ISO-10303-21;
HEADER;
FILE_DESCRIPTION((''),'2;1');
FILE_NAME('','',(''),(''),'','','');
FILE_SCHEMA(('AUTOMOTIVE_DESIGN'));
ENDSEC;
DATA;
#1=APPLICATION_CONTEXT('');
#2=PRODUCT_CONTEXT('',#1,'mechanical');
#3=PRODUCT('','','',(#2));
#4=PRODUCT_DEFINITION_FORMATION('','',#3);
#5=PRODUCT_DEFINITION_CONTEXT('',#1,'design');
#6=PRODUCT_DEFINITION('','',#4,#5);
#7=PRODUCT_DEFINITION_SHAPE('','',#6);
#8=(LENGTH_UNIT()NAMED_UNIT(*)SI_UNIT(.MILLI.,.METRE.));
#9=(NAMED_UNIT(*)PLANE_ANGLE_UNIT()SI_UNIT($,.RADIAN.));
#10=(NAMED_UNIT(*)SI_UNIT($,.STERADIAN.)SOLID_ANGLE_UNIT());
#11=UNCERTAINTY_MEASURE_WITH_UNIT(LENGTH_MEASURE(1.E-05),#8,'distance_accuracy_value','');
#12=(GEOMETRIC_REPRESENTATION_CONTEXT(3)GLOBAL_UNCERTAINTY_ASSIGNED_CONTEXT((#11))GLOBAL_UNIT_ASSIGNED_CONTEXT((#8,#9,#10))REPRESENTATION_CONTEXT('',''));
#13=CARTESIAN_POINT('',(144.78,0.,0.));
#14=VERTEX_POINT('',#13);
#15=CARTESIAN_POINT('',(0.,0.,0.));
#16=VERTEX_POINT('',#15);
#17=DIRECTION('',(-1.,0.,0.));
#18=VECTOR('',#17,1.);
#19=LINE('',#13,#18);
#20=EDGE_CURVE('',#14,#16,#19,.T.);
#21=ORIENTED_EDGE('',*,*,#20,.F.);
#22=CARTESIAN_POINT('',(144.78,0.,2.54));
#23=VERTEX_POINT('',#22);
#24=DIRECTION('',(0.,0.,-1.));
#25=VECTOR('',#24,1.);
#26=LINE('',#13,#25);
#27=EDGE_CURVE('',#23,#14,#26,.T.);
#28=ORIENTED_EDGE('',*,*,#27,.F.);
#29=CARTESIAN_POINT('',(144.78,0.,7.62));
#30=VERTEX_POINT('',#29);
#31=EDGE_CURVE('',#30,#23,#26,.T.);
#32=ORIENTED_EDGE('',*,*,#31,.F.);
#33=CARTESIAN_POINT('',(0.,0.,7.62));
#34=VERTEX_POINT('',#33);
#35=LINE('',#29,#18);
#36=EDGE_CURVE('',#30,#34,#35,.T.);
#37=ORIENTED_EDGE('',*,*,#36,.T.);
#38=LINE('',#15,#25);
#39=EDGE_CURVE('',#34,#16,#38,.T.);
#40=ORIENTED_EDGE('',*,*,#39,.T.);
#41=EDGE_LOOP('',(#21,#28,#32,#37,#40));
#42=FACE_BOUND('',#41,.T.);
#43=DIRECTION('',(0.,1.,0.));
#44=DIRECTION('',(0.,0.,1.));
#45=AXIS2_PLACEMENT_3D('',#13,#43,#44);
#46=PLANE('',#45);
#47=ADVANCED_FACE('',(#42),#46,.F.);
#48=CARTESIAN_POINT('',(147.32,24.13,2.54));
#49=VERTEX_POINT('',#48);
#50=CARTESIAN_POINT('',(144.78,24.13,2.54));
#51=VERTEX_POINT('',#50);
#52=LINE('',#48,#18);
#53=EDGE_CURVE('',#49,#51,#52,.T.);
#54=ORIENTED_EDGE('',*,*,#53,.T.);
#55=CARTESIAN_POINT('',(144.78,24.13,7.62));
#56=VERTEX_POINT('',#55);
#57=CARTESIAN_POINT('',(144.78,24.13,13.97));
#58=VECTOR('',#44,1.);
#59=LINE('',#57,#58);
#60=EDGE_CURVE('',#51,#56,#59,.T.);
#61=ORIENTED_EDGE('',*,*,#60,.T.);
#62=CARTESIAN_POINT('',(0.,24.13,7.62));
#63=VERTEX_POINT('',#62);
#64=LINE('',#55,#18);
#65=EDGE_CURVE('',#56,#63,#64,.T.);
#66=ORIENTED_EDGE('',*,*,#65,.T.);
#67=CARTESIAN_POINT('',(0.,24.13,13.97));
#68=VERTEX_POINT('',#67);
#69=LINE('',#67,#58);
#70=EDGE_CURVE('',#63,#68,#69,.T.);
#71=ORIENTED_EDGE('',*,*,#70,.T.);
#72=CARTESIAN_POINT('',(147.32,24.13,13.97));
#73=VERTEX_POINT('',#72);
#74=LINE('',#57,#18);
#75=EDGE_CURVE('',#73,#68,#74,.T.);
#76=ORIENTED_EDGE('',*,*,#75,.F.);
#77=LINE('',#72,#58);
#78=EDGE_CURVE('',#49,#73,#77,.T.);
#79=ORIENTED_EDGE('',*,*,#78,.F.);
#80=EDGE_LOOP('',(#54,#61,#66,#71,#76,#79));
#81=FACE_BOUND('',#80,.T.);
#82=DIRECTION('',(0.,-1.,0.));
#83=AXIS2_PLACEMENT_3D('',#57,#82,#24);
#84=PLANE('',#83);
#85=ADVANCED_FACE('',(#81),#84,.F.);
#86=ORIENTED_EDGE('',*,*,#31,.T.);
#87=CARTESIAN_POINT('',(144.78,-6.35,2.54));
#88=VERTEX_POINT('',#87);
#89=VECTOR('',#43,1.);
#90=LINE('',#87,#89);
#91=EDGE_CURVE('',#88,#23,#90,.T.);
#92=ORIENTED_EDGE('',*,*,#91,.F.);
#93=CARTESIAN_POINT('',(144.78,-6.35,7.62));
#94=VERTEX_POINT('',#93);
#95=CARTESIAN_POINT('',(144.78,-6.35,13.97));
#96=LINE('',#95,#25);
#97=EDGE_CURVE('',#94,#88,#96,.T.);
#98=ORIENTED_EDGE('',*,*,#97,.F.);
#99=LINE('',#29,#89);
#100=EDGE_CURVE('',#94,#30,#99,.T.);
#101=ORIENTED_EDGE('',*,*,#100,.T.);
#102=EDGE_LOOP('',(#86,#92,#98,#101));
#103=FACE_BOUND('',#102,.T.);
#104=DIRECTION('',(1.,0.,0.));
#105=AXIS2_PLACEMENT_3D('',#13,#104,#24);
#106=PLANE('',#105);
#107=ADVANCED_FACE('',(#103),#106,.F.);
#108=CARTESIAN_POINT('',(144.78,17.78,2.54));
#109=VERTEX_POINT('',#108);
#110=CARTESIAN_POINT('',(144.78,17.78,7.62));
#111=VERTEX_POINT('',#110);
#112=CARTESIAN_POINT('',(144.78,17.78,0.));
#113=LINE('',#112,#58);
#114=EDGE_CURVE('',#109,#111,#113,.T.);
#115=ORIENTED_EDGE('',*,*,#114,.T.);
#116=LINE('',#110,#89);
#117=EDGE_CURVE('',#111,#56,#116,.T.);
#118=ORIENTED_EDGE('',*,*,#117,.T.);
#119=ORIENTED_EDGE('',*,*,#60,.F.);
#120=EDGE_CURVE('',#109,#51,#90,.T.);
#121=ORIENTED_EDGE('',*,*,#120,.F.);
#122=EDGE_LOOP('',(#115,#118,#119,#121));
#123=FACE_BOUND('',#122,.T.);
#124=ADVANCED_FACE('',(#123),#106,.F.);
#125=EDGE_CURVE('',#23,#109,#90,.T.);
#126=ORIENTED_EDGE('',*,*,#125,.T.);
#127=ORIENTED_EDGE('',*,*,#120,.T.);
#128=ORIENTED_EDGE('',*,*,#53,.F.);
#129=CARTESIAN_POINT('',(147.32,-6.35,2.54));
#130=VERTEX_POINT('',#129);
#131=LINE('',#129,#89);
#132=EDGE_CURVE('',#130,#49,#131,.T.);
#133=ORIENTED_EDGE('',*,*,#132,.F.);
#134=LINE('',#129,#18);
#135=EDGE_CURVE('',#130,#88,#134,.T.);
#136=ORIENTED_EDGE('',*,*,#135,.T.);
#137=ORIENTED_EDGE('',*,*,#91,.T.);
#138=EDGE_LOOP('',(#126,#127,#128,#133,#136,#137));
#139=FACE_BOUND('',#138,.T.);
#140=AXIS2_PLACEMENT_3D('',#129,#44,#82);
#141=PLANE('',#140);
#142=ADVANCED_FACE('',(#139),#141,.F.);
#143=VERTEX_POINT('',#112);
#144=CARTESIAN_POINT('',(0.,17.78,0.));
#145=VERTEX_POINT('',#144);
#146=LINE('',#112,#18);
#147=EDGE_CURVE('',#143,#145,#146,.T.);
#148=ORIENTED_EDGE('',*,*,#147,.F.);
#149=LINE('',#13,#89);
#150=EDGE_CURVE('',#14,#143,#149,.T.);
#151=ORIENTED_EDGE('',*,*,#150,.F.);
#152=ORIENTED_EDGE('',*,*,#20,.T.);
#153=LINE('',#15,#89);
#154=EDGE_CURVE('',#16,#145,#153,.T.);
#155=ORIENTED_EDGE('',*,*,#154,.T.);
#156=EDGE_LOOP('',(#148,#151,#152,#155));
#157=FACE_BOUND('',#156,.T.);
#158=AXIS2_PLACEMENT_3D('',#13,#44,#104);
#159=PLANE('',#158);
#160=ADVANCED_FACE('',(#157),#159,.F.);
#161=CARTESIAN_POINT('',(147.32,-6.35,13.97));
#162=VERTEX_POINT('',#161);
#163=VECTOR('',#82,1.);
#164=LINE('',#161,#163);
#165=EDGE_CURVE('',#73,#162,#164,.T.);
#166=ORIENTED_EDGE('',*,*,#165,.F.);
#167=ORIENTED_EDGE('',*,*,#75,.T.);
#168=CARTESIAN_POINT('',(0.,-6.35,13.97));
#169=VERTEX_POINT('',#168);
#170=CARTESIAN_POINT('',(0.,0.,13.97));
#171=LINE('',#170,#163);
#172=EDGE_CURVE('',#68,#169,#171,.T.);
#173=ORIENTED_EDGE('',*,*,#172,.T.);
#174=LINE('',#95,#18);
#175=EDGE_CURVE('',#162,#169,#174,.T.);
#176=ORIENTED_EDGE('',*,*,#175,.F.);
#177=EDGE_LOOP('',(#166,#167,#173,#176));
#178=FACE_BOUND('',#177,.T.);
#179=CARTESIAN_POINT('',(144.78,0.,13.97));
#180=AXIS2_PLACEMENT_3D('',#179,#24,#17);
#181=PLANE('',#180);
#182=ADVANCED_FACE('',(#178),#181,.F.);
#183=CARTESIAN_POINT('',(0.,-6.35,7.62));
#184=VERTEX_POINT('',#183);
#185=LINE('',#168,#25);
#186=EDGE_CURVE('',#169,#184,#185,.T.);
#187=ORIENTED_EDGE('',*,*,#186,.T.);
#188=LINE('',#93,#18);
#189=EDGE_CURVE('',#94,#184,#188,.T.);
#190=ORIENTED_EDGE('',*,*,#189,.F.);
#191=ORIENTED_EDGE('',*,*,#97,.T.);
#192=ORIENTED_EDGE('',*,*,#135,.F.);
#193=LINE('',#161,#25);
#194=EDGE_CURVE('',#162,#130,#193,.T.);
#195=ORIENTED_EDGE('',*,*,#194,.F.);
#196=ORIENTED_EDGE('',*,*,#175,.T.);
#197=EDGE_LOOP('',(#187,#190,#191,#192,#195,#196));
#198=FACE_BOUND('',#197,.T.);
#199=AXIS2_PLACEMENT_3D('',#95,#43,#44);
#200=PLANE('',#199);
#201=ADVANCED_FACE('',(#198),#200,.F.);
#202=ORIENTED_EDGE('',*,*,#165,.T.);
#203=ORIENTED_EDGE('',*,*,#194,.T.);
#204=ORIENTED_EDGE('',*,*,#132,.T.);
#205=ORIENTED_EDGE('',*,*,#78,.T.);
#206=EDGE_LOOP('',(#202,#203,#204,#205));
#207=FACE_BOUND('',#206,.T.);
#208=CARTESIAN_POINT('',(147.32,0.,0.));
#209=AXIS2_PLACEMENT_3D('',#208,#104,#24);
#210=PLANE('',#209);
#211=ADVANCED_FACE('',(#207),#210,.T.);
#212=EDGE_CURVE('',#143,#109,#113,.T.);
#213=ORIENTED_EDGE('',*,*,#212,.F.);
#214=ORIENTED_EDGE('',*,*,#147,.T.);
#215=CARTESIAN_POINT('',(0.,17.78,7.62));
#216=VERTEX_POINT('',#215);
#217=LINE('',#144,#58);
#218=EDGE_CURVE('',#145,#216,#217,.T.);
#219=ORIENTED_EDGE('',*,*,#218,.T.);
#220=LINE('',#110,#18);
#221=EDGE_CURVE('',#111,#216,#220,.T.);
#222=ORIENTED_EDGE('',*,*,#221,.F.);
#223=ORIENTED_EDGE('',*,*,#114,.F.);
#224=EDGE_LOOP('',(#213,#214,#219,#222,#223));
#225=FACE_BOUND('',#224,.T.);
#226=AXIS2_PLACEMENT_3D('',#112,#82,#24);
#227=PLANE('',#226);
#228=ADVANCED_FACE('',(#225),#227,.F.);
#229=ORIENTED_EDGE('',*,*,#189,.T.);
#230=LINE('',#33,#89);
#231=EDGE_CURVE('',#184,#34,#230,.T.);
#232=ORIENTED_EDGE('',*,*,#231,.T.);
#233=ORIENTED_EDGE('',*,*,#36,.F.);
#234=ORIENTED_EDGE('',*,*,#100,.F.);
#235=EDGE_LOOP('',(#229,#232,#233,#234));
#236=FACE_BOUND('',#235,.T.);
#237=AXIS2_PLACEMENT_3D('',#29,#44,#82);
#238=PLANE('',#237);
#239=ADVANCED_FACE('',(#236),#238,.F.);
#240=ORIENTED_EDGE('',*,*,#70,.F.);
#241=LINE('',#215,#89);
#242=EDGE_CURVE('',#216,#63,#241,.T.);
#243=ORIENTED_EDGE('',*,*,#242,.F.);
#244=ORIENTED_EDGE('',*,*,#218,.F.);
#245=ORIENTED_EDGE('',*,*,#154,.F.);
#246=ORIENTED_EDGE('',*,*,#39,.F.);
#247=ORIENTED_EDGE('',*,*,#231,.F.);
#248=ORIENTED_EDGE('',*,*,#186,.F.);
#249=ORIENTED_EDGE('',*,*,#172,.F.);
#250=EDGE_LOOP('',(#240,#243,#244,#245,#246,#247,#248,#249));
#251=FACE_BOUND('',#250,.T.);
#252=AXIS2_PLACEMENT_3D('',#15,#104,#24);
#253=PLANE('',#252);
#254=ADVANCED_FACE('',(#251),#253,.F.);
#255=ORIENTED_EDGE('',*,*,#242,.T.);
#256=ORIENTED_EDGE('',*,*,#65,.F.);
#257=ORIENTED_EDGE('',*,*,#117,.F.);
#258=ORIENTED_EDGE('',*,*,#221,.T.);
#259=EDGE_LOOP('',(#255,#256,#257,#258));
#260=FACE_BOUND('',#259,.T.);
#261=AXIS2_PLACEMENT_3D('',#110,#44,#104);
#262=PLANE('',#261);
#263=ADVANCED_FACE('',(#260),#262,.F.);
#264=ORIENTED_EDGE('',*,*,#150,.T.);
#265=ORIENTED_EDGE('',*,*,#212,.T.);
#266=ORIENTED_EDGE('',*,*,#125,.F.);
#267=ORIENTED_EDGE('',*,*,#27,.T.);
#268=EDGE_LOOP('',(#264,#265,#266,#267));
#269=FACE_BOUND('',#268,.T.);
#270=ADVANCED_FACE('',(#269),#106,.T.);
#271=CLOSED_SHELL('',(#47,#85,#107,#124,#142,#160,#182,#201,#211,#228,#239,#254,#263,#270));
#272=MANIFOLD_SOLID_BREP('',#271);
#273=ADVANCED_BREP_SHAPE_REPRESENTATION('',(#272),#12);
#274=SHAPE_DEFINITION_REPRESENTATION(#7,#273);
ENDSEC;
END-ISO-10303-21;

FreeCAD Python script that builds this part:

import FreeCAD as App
import Part
import Sketcher

V = App.Vector
Q = App.Units.Quantity


def add_polygon(sketch, points):
    """Adds a closed chain of lines whose ends are joined by coincident constraints."""
    first, n = sketch.GeometryCount, len(points)
    for a, b in zip(points, points[1:] + points[:1]):
        sketch.addGeometry(Part.LineSegment(App.Vector(*a, 0), App.Vector(*b, 0)), False)
    for i in range(n):
        sketch.addConstraint(Sketcher.Constraint("Coincident", first + i, 2, first + (i + 1) % n, 1))

doc = App.newDocument("Part")
params = doc.addObject("Spreadsheet::Sheet", "Params")
for row, (alias, value) in enumerate([
    ("sketch1_width", "0.7 in"),
    ("sketch1_width2", "1.2 in"),
    ("sketch1_height", "0.3 in"),
    ("pad1_length", "5.7 in"),
    ("sketch2_width", "1.2 in"),
    ("sketch2_height", "0.45 in"),
    ("pad2_length", "0.1 in"),
], start=1):
    params.set(f"A{row}", alias)
    params.set(f"B{row}", "=" + value)
    params.setAlias(f"B{row}", alias)

body = doc.addObject("PartDesign::Body", "Body")

# Sketch on YZ plane
sketch1 = doc.addObject("Sketcher::SketchObject", "Sketch")
body.addObject(sketch1)
sketch1.AttachmentSupport = (doc.YZ_Plane, [""])
sketch1.MapMode = "FlatFace"
add_polygon(sketch1, [(0, 0), (18, 0), (18, 8), (24, 8), (24, 14), (-6, 14), (-6, 8), (0, 8)])  # lines 0-7
sketch1.addConstraint(Sketcher.Constraint("Horizontal", 0))
sketch1.addConstraint(Sketcher.Constraint("Vertical", 1))
sketch1.addConstraint(Sketcher.Constraint("Horizontal", 2))
sketch1.addConstraint(Sketcher.Constraint("Vertical", 3))
sketch1.addConstraint(Sketcher.Constraint("Horizontal", 4))
sketch1.addConstraint(Sketcher.Constraint("Vertical", 5))
sketch1.addConstraint(Sketcher.Constraint("Horizontal", 6))
sketch1.addConstraint(Sketcher.Constraint("Vertical", 7))
sketch1.addConstraint(Sketcher.Constraint("Coincident", 7, 2, -1, 1))
sketch1.addConstraint(Sketcher.Constraint("Horizontal", 2, 2, 5, 2))
sketch1.addConstraint(Sketcher.Constraint("Equal", 2, 6))
sketch1.addConstraint(Sketcher.Constraint("Equal", 6, 3))
sketch1.addConstraint(Sketcher.Constraint("DistanceX", 0, 1, 0, 2, Q("0.7 in")))
sketch1.addConstraint(Sketcher.Constraint("DistanceX", 4, 2, 4, 1, Q("1.2 in")))
sketch1.addConstraint(Sketcher.Constraint("DistanceY", 1, 1, 1, 2, Q("0.3 in")))
sketch1.setExpression("Constraints[20]", "Params.sketch1_width")
sketch1.setExpression("Constraints[21]", "Params.sketch1_width2")
sketch1.setExpression("Constraints[22]", "Params.sketch1_height")
pad1 = doc.addObject("PartDesign::Pad", "Pad")
body.addObject(pad1)
pad1.Profile = sketch1
pad1.setExpression("Length", "Params.pad1_length")

# Sketch on YZ plane
sketch2 = doc.addObject("Sketcher::SketchObject", "Sketch001")
body.addObject(sketch2)
sketch2.AttachmentSupport = (doc.YZ_Plane, [""])
sketch2.MapMode = "FlatFace"
sketch2.AttachmentOffset = App.Placement(V(0, 0, 5.7 * 25.4), App.Rotation())
add_polygon(sketch2, [(-6, 14), (-6, 3), (24, 3), (24, 14)])  # lines 0-3
sketch2.addConstraint(Sketcher.Constraint("Vertical", 0))
sketch2.addConstraint(Sketcher.Constraint("Horizontal", 1))
sketch2.addConstraint(Sketcher.Constraint("Vertical", 2))
sketch2.addConstraint(Sketcher.Constraint("Horizontal", 3))
sketch2.addConstraint(Sketcher.Constraint("DistanceX", 1, 1, 1, 2, Q("1.2 in")))
sketch2.addConstraint(Sketcher.Constraint("DistanceY", 0, 2, 0, 1, Q("0.45 in")))
sketch2.addConstraint(Sketcher.Constraint("DistanceY", -1, 1, 0, 2, Q("0.1 in")))
sketch2.addConstraint(Sketcher.Constraint("DistanceX", 0, 2, -1, 1, Q("0.25 in")))
sketch2.setExpression("Constraints[8]", "Params.sketch2_width")
sketch2.setExpression("Constraints[9]", "Params.sketch2_height")
pad2 = doc.addObject("PartDesign::Pad", "Pad001")
body.addObject(pad2)
pad2.Profile = sketch2
pad2.setExpression("Length", "Params.pad2_length")

doc.recompute()
